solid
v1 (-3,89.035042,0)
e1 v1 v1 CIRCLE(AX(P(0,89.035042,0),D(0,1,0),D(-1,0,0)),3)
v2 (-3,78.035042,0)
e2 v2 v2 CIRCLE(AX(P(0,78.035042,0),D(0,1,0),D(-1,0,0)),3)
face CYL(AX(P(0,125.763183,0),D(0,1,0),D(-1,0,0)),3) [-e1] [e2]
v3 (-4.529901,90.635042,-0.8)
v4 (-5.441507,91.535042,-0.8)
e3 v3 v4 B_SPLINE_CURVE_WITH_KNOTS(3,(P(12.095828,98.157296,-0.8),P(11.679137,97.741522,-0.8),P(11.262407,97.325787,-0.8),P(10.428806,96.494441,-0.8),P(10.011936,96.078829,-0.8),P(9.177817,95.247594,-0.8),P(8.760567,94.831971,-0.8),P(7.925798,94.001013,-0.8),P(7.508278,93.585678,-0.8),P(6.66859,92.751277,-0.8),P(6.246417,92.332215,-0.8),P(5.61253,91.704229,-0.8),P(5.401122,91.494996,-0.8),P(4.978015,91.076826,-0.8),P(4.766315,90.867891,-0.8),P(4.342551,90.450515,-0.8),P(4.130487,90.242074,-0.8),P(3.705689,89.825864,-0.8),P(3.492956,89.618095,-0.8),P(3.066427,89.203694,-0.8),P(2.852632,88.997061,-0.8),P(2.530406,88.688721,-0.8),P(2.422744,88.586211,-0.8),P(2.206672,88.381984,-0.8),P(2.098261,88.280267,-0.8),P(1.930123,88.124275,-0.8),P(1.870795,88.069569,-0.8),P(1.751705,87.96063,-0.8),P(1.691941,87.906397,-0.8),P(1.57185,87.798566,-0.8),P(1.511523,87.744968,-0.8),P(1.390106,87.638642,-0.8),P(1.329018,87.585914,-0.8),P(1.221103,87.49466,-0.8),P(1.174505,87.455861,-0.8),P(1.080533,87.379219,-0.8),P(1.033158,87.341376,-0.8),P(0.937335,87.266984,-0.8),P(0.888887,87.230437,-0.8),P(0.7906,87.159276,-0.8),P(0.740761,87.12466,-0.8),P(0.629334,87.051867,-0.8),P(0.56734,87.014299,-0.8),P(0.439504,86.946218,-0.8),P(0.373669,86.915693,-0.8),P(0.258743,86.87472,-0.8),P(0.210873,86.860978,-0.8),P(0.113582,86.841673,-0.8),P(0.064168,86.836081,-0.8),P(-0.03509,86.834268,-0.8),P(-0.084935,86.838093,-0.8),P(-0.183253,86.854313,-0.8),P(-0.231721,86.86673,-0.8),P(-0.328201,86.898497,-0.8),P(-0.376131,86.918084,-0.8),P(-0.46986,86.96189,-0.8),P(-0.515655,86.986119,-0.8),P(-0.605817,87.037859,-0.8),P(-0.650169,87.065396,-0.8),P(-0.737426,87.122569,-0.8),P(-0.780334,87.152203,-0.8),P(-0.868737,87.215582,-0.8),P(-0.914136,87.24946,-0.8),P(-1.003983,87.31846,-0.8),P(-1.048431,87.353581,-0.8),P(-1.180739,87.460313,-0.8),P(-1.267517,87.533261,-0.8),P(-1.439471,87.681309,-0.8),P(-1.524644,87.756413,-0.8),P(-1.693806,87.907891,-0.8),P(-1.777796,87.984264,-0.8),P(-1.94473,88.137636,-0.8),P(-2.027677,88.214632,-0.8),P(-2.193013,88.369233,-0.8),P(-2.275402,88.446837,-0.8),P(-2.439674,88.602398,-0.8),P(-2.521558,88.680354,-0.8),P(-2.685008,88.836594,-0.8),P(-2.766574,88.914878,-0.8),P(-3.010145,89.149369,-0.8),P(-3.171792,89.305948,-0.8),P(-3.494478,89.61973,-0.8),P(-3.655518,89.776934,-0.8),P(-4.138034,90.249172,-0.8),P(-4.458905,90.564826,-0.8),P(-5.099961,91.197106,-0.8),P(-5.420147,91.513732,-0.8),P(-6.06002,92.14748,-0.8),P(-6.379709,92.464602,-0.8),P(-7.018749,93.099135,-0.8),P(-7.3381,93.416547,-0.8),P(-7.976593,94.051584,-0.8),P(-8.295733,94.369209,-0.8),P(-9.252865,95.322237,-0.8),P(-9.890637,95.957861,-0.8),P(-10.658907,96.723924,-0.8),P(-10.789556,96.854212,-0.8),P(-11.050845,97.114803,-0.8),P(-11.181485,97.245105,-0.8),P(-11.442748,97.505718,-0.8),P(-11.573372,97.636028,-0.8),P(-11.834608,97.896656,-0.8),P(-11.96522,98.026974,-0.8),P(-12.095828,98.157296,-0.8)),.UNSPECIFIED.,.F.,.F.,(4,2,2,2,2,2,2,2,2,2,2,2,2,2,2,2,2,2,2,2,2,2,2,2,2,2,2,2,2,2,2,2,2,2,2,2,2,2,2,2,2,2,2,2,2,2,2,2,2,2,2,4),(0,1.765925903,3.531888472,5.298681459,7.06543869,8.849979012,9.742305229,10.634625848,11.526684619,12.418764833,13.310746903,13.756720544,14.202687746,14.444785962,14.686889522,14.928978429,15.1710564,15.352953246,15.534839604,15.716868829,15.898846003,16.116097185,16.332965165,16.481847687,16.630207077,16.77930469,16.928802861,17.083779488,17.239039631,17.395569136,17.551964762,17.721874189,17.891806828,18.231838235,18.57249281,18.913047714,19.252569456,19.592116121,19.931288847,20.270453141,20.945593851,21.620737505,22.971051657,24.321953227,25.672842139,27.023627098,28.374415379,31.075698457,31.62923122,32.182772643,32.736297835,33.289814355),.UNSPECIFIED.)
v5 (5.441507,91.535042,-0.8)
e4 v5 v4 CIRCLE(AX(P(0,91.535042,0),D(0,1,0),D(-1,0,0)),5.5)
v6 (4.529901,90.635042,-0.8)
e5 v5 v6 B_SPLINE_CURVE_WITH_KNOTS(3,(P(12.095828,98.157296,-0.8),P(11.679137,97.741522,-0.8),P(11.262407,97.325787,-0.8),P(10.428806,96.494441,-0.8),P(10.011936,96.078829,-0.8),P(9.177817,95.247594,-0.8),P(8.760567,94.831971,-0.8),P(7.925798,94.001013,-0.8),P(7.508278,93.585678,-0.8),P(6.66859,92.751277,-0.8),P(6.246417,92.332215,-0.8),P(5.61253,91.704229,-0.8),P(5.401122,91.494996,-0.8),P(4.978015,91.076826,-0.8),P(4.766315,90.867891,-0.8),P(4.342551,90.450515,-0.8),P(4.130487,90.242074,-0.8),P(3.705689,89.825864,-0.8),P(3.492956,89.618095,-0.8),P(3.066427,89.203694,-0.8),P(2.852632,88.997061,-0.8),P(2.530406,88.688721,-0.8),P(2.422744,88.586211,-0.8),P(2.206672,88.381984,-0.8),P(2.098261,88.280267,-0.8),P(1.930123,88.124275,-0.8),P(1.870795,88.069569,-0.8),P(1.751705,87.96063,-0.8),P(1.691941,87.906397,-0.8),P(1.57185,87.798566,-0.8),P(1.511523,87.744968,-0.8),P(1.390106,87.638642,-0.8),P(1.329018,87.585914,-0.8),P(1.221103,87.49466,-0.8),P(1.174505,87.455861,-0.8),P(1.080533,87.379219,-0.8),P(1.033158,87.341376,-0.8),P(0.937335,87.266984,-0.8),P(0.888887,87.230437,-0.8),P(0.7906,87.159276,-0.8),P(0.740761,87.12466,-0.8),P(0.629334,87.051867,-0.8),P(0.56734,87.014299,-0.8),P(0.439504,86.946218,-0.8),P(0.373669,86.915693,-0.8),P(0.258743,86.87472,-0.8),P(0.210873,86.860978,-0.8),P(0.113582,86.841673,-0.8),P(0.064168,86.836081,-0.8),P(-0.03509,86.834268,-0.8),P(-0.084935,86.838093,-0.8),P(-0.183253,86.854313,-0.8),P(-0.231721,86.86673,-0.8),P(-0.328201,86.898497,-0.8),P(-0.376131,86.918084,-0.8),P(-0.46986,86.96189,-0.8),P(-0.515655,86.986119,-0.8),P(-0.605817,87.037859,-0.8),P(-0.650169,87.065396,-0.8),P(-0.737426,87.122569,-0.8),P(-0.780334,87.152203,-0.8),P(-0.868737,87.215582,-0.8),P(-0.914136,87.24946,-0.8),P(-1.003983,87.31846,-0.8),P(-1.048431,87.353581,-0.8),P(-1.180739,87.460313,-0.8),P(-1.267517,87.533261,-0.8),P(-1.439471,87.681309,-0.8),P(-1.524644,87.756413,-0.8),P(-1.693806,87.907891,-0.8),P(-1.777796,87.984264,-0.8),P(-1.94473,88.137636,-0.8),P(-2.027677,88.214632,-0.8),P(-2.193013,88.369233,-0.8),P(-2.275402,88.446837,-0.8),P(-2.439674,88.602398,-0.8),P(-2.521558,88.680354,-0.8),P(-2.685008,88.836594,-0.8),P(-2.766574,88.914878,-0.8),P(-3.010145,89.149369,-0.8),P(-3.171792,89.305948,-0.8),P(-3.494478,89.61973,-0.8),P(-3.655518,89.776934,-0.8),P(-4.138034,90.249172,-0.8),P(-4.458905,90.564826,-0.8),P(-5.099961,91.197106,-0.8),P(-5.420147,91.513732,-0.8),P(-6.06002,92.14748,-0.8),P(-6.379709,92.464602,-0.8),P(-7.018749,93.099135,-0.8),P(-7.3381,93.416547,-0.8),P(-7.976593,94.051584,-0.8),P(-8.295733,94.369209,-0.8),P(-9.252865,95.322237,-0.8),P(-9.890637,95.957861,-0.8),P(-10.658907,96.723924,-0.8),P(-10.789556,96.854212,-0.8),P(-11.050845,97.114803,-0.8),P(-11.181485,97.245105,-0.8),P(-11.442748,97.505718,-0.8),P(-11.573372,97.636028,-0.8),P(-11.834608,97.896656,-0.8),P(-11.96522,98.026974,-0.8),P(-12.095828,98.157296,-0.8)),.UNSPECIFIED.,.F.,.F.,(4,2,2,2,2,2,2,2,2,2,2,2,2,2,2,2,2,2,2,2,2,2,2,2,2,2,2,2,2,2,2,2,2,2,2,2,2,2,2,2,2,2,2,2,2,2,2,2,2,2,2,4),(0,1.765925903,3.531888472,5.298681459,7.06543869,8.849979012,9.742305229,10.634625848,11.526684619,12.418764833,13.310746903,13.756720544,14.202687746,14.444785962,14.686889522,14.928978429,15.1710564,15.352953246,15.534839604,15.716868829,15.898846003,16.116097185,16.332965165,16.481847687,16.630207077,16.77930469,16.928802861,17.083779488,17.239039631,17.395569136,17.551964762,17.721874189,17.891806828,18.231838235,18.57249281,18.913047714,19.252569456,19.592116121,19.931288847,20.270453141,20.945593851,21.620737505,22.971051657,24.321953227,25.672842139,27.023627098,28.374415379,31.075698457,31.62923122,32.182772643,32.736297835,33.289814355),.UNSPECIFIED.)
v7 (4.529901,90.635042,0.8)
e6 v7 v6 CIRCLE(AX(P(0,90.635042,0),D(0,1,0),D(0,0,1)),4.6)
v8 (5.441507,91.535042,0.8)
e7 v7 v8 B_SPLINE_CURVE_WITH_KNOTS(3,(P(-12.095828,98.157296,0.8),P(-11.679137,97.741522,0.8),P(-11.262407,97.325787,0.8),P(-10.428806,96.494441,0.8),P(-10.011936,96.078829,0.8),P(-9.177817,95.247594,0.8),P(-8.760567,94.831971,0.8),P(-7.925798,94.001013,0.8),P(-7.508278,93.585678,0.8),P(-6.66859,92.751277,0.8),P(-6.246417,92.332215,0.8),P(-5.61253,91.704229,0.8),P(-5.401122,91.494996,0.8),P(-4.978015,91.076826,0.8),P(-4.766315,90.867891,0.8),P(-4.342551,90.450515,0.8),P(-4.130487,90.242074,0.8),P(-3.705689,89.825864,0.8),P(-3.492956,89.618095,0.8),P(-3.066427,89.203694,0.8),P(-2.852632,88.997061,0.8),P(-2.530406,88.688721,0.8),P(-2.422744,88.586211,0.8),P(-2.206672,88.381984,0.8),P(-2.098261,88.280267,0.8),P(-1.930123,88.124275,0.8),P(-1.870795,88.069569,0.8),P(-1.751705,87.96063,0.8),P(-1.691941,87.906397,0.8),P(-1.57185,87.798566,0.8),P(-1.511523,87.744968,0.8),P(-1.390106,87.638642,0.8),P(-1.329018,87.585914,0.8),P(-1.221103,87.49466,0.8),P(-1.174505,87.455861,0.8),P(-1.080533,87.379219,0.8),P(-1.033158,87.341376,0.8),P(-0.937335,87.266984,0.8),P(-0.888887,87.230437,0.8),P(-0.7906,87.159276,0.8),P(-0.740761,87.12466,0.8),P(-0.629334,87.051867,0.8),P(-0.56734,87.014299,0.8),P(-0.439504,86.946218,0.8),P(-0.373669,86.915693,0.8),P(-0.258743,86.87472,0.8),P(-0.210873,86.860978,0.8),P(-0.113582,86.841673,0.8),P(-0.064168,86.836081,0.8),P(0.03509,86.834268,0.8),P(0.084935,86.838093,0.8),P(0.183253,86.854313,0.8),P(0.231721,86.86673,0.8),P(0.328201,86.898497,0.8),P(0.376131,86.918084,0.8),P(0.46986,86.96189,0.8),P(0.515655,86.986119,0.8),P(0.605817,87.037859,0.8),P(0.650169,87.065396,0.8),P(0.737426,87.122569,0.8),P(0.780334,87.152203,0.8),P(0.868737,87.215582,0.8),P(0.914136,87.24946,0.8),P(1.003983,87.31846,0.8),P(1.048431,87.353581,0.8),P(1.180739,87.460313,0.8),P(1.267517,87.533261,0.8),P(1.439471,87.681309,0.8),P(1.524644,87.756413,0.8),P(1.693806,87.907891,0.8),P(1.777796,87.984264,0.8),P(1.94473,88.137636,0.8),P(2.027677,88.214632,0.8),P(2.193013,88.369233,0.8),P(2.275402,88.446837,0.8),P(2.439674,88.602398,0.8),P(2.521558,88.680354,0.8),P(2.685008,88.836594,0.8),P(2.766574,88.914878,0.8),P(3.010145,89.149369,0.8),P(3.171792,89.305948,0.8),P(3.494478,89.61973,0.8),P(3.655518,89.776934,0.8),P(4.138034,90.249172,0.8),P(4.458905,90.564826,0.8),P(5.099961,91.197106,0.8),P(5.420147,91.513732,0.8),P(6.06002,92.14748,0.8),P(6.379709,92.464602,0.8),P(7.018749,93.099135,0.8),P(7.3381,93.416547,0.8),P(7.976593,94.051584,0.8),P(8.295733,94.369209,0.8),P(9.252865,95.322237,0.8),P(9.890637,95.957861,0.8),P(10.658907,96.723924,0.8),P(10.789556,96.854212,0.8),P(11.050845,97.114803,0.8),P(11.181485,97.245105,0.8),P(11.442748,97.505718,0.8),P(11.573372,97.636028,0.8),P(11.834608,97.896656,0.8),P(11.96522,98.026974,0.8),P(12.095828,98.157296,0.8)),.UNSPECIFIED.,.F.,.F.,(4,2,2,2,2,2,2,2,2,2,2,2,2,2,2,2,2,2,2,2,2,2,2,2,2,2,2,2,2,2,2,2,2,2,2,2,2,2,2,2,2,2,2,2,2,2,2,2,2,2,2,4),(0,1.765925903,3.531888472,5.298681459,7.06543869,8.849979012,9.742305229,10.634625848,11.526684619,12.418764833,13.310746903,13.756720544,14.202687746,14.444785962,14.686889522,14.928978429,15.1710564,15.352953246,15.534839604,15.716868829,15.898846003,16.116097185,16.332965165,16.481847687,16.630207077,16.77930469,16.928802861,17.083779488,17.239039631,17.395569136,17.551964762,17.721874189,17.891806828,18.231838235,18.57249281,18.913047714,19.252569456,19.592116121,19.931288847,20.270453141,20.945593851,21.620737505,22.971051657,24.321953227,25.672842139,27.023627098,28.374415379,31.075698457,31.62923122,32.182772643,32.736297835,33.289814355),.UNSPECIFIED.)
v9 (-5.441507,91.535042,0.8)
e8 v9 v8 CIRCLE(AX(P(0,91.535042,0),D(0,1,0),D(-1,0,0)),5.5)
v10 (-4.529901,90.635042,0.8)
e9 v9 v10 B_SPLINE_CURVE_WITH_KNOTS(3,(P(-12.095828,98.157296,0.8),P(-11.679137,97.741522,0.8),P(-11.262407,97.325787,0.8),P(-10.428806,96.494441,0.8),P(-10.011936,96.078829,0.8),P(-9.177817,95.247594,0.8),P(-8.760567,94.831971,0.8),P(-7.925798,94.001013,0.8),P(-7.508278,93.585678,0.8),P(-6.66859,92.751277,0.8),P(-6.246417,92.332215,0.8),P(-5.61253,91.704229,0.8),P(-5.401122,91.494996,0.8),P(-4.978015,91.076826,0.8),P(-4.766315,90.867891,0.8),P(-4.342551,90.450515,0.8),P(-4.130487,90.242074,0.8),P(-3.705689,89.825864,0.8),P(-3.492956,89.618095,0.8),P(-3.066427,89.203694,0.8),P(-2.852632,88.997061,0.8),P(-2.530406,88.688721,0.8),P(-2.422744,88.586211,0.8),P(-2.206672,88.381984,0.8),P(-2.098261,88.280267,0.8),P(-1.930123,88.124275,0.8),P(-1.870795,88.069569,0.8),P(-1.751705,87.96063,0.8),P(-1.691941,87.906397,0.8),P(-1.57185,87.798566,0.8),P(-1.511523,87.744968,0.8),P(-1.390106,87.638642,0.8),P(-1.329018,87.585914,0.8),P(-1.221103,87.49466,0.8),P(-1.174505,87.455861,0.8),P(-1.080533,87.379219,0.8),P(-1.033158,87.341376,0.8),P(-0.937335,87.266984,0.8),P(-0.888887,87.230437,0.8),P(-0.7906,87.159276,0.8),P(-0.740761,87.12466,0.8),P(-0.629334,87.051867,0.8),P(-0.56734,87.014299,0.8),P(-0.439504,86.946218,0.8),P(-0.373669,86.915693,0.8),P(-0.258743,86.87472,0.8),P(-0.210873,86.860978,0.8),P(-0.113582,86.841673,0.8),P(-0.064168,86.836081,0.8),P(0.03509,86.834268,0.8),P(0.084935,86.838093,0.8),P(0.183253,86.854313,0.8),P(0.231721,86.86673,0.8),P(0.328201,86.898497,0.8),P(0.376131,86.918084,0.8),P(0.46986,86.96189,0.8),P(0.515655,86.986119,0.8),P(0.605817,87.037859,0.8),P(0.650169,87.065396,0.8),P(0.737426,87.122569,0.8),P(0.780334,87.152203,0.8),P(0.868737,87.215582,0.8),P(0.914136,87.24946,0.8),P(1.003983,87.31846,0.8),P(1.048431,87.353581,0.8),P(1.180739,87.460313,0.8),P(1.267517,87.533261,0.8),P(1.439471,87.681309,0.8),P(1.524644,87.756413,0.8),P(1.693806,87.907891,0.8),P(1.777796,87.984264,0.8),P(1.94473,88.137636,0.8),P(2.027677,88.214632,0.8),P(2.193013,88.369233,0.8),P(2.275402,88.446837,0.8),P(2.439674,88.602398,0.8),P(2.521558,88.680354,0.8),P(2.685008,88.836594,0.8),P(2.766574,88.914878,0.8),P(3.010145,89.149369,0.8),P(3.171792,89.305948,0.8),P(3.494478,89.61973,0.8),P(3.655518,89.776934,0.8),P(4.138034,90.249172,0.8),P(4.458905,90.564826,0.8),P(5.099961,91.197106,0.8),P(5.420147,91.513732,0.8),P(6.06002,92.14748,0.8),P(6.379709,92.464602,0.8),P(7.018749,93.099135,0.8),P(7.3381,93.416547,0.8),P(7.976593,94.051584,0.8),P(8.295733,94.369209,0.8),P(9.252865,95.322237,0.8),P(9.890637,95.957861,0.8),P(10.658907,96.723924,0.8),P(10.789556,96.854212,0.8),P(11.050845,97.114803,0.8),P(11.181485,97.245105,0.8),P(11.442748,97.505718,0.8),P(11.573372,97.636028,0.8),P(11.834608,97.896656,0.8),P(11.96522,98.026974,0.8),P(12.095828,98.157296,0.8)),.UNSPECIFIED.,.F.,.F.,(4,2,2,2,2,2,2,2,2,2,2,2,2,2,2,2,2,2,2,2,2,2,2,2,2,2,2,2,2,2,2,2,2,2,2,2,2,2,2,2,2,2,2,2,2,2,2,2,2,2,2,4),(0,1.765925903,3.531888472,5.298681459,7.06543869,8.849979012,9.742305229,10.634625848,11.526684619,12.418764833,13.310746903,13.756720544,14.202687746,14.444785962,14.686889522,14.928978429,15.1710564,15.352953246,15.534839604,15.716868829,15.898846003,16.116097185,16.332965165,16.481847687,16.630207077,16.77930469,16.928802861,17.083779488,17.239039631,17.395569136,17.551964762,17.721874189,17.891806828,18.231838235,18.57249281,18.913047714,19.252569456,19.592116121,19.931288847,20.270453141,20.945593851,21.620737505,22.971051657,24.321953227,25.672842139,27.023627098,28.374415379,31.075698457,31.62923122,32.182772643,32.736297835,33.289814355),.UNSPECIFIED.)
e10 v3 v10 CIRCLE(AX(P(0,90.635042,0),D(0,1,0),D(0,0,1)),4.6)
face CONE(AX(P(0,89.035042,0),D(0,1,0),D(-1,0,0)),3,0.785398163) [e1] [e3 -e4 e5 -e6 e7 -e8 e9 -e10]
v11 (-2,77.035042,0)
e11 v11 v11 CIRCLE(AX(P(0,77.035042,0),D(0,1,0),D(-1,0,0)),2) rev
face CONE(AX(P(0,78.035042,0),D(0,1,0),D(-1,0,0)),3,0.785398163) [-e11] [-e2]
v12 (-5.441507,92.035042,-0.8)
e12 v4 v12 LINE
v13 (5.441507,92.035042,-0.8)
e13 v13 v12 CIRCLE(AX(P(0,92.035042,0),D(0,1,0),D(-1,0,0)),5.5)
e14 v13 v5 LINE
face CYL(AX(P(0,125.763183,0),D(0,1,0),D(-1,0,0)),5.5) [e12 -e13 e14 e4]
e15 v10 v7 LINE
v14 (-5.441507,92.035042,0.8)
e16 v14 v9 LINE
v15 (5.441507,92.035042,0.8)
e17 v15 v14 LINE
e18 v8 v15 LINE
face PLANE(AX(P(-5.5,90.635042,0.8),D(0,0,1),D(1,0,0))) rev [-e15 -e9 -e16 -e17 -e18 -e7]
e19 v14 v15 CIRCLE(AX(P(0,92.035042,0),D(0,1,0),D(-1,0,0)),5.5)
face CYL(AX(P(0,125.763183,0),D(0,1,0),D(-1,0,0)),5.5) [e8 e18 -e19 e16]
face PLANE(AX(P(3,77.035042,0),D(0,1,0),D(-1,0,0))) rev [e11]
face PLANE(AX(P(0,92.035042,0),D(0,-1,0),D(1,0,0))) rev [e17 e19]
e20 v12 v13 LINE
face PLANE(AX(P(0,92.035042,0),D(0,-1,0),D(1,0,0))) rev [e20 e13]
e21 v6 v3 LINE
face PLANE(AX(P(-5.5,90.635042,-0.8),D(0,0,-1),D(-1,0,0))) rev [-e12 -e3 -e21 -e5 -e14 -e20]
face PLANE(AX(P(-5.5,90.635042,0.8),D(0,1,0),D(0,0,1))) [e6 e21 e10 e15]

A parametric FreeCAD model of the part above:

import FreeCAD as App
import Part
import Sketcher
Q = App.Units.Quantity


def edges_at(feature, points):
    """Names of the edges that pass closest to the given points."""
    edges = feature.Shape.Edges
    near = lambda p: min(range(len(edges)), key=lambda i: edges[i].distToShape(Part.Vertex(*p))[0])
    return sorted({f"Edge{near(p) + 1}" for p in points})

doc = App.newDocument("Part")
body = doc.addObject("PartDesign::Body", "Body")

# Sketch on XY plane
sketch1 = body.newObject("Sketcher::SketchObject", "Sketch")
sketch1.AttachmentSupport = (doc.getObject("XY_Plane"), [""])
sketch1.MapMode = "FlatFace"
sketch1.addGeometry(Part.LineSegment(App.Vector(0, 92, 0), App.Vector(0, 77, 0)), False)
sketch1.addGeometry(Part.LineSegment(App.Vector(0, 77, 0), App.Vector(3, 77, 0)), False)
sketch1.addGeometry(Part.LineSegment(App.Vector(3, 77, 0), App.Vector(3, 89, 0)), False)
sketch1.addGeometry(Part.LineSegment(App.Vector(3, 89, 0), App.Vector(5.5, 91.5, 0)), False)
sketch1.addGeometry(Part.LineSegment(App.Vector(5.5, 91.5, 0), App.Vector(5.5, 92, 0)), False)
sketch1.addGeometry(Part.LineSegment(App.Vector(5.5, 92, 0), App.Vector(0, 92, 0)), False)
sketch1.addConstraint(Sketcher.Constraint("Coincident", 0, 2, 1, 1))
sketch1.addConstraint(Sketcher.Constraint("Coincident", 1, 2, 2, 1))
sketch1.addConstraint(Sketcher.Constraint("Coincident", 2, 2, 3, 1))
sketch1.addConstraint(Sketcher.Constraint("Coincident", 3, 2, 4, 1))
sketch1.addConstraint(Sketcher.Constraint("Coincident", 4, 2, 5, 1))
sketch1.addConstraint(Sketcher.Constraint("Coincident", 5, 2, 0, 1))
sketch1.addConstraint(Sketcher.Constraint("Vertical", 0))
sketch1.addConstraint(Sketcher.Constraint("Horizontal", 1))
sketch1.addConstraint(Sketcher.Constraint("Vertical", 2))
sketch1.addConstraint(Sketcher.Constraint("Vertical", 4))
sketch1.addConstraint(Sketcher.Constraint("Horizontal", 5))
sketch1.addConstraint(Sketcher.Constraint("PointOnObject", 0, 2, -2))
sketch1.addConstraint(Sketcher.Constraint("DistanceX", 1, 1, 1, 2, Q("3 mm")))
sketch1.addConstraint(Sketcher.Constraint("DistanceY", 0, 2, 0, 1, Q("15 mm")))
sketch1.addConstraint(Sketcher.Constraint("DistanceY", 2, 1, 2, 2, Q("12 mm")))
sketch1.addConstraint(Sketcher.Constraint("Angle", 3, Q("45 deg")))
sketch1.addConstraint(Sketcher.Constraint("DistanceX", 5, 2, 5, 1, Q("5.5 mm")))
sketch1.addConstraint(Sketcher.Constraint("DistanceY", -1, 1, 0, 2, Q("77.035042 mm")))
revolution = body.newObject("PartDesign::Revolution", "Revolution")
revolution.Profile = sketch1
revolution.ReferenceAxis = (sketch1, ["V_Axis"])
revolution.Angle = 360

# Sketch on XZ plane
sketch2 = body.newObject("Sketcher::SketchObject", "Sketch001")
sketch2.AttachmentSupport = (doc.getObject("XZ_Plane"), [""])
sketch2.MapMode = "FlatFace"
sketch2.AttachmentOffset = App.Placement(App.Vector(0, 0, -92.035042), App.Rotation())
sketch2.addGeometry(Part.LineSegment(App.Vector(5.5, 0.8, 0), App.Vector(5.5, -0.8, 0)), False)
sketch2.addGeometry(Part.LineSegment(App.Vector(5.5, -0.8, 0), App.Vector(-5.5, -0.8, 0)), False)
sketch2.addGeometry(Part.LineSegment(App.Vector(-5.5, -0.8, 0), App.Vector(-5.5, 0.8, 0)), False)
sketch2.addGeometry(Part.LineSegment(App.Vector(-5.5, 0.8, 0), App.Vector(5.5, 0.8, 0)), False)
sketch2.addConstraint(Sketcher.Constraint("Coincident", 0, 2, 1, 1))
sketch2.addConstraint(Sketcher.Constraint("Coincident", 1, 2, 2, 1))
sketch2.addConstraint(Sketcher.Constraint("Coincident", 2, 2, 3, 1))
sketch2.addConstraint(Sketcher.Constraint("Coincident", 3, 2, 0, 1))
sketch2.addConstraint(Sketcher.Constraint("Vertical", 0))
sketch2.addConstraint(Sketcher.Constraint("Horizontal", 1))
sketch2.addConstraint(Sketcher.Constraint("Vertical", 2))
sketch2.addConstraint(Sketcher.Constraint("Horizontal", 3))
sketch2.addConstraint(Sketcher.Constraint("Symmetric", 0, 2, 2, 2, -1, 1))
sketch2.addConstraint(Sketcher.Constraint("DistanceX", 1, 2, 1, 1, Q("11 mm")))
sketch2.addConstraint(Sketcher.Constraint("DistanceY", 0, 2, 0, 1, Q("1.6 mm")))
pocket1 = body.newObject("PartDesign::Pocket", "Pocket")
pocket1.Profile = sketch2
pocket1.Length = 1.4
pocket1.Reversed = True
doc.recompute()

chamfer = body.newObject("PartDesign::Chamfer", "Chamfer")
chamfer.Base = (pocket1, edges_at(pocket1, [(3, 77.035, 0)]))
chamfer.Size = 1

doc.recompute()
